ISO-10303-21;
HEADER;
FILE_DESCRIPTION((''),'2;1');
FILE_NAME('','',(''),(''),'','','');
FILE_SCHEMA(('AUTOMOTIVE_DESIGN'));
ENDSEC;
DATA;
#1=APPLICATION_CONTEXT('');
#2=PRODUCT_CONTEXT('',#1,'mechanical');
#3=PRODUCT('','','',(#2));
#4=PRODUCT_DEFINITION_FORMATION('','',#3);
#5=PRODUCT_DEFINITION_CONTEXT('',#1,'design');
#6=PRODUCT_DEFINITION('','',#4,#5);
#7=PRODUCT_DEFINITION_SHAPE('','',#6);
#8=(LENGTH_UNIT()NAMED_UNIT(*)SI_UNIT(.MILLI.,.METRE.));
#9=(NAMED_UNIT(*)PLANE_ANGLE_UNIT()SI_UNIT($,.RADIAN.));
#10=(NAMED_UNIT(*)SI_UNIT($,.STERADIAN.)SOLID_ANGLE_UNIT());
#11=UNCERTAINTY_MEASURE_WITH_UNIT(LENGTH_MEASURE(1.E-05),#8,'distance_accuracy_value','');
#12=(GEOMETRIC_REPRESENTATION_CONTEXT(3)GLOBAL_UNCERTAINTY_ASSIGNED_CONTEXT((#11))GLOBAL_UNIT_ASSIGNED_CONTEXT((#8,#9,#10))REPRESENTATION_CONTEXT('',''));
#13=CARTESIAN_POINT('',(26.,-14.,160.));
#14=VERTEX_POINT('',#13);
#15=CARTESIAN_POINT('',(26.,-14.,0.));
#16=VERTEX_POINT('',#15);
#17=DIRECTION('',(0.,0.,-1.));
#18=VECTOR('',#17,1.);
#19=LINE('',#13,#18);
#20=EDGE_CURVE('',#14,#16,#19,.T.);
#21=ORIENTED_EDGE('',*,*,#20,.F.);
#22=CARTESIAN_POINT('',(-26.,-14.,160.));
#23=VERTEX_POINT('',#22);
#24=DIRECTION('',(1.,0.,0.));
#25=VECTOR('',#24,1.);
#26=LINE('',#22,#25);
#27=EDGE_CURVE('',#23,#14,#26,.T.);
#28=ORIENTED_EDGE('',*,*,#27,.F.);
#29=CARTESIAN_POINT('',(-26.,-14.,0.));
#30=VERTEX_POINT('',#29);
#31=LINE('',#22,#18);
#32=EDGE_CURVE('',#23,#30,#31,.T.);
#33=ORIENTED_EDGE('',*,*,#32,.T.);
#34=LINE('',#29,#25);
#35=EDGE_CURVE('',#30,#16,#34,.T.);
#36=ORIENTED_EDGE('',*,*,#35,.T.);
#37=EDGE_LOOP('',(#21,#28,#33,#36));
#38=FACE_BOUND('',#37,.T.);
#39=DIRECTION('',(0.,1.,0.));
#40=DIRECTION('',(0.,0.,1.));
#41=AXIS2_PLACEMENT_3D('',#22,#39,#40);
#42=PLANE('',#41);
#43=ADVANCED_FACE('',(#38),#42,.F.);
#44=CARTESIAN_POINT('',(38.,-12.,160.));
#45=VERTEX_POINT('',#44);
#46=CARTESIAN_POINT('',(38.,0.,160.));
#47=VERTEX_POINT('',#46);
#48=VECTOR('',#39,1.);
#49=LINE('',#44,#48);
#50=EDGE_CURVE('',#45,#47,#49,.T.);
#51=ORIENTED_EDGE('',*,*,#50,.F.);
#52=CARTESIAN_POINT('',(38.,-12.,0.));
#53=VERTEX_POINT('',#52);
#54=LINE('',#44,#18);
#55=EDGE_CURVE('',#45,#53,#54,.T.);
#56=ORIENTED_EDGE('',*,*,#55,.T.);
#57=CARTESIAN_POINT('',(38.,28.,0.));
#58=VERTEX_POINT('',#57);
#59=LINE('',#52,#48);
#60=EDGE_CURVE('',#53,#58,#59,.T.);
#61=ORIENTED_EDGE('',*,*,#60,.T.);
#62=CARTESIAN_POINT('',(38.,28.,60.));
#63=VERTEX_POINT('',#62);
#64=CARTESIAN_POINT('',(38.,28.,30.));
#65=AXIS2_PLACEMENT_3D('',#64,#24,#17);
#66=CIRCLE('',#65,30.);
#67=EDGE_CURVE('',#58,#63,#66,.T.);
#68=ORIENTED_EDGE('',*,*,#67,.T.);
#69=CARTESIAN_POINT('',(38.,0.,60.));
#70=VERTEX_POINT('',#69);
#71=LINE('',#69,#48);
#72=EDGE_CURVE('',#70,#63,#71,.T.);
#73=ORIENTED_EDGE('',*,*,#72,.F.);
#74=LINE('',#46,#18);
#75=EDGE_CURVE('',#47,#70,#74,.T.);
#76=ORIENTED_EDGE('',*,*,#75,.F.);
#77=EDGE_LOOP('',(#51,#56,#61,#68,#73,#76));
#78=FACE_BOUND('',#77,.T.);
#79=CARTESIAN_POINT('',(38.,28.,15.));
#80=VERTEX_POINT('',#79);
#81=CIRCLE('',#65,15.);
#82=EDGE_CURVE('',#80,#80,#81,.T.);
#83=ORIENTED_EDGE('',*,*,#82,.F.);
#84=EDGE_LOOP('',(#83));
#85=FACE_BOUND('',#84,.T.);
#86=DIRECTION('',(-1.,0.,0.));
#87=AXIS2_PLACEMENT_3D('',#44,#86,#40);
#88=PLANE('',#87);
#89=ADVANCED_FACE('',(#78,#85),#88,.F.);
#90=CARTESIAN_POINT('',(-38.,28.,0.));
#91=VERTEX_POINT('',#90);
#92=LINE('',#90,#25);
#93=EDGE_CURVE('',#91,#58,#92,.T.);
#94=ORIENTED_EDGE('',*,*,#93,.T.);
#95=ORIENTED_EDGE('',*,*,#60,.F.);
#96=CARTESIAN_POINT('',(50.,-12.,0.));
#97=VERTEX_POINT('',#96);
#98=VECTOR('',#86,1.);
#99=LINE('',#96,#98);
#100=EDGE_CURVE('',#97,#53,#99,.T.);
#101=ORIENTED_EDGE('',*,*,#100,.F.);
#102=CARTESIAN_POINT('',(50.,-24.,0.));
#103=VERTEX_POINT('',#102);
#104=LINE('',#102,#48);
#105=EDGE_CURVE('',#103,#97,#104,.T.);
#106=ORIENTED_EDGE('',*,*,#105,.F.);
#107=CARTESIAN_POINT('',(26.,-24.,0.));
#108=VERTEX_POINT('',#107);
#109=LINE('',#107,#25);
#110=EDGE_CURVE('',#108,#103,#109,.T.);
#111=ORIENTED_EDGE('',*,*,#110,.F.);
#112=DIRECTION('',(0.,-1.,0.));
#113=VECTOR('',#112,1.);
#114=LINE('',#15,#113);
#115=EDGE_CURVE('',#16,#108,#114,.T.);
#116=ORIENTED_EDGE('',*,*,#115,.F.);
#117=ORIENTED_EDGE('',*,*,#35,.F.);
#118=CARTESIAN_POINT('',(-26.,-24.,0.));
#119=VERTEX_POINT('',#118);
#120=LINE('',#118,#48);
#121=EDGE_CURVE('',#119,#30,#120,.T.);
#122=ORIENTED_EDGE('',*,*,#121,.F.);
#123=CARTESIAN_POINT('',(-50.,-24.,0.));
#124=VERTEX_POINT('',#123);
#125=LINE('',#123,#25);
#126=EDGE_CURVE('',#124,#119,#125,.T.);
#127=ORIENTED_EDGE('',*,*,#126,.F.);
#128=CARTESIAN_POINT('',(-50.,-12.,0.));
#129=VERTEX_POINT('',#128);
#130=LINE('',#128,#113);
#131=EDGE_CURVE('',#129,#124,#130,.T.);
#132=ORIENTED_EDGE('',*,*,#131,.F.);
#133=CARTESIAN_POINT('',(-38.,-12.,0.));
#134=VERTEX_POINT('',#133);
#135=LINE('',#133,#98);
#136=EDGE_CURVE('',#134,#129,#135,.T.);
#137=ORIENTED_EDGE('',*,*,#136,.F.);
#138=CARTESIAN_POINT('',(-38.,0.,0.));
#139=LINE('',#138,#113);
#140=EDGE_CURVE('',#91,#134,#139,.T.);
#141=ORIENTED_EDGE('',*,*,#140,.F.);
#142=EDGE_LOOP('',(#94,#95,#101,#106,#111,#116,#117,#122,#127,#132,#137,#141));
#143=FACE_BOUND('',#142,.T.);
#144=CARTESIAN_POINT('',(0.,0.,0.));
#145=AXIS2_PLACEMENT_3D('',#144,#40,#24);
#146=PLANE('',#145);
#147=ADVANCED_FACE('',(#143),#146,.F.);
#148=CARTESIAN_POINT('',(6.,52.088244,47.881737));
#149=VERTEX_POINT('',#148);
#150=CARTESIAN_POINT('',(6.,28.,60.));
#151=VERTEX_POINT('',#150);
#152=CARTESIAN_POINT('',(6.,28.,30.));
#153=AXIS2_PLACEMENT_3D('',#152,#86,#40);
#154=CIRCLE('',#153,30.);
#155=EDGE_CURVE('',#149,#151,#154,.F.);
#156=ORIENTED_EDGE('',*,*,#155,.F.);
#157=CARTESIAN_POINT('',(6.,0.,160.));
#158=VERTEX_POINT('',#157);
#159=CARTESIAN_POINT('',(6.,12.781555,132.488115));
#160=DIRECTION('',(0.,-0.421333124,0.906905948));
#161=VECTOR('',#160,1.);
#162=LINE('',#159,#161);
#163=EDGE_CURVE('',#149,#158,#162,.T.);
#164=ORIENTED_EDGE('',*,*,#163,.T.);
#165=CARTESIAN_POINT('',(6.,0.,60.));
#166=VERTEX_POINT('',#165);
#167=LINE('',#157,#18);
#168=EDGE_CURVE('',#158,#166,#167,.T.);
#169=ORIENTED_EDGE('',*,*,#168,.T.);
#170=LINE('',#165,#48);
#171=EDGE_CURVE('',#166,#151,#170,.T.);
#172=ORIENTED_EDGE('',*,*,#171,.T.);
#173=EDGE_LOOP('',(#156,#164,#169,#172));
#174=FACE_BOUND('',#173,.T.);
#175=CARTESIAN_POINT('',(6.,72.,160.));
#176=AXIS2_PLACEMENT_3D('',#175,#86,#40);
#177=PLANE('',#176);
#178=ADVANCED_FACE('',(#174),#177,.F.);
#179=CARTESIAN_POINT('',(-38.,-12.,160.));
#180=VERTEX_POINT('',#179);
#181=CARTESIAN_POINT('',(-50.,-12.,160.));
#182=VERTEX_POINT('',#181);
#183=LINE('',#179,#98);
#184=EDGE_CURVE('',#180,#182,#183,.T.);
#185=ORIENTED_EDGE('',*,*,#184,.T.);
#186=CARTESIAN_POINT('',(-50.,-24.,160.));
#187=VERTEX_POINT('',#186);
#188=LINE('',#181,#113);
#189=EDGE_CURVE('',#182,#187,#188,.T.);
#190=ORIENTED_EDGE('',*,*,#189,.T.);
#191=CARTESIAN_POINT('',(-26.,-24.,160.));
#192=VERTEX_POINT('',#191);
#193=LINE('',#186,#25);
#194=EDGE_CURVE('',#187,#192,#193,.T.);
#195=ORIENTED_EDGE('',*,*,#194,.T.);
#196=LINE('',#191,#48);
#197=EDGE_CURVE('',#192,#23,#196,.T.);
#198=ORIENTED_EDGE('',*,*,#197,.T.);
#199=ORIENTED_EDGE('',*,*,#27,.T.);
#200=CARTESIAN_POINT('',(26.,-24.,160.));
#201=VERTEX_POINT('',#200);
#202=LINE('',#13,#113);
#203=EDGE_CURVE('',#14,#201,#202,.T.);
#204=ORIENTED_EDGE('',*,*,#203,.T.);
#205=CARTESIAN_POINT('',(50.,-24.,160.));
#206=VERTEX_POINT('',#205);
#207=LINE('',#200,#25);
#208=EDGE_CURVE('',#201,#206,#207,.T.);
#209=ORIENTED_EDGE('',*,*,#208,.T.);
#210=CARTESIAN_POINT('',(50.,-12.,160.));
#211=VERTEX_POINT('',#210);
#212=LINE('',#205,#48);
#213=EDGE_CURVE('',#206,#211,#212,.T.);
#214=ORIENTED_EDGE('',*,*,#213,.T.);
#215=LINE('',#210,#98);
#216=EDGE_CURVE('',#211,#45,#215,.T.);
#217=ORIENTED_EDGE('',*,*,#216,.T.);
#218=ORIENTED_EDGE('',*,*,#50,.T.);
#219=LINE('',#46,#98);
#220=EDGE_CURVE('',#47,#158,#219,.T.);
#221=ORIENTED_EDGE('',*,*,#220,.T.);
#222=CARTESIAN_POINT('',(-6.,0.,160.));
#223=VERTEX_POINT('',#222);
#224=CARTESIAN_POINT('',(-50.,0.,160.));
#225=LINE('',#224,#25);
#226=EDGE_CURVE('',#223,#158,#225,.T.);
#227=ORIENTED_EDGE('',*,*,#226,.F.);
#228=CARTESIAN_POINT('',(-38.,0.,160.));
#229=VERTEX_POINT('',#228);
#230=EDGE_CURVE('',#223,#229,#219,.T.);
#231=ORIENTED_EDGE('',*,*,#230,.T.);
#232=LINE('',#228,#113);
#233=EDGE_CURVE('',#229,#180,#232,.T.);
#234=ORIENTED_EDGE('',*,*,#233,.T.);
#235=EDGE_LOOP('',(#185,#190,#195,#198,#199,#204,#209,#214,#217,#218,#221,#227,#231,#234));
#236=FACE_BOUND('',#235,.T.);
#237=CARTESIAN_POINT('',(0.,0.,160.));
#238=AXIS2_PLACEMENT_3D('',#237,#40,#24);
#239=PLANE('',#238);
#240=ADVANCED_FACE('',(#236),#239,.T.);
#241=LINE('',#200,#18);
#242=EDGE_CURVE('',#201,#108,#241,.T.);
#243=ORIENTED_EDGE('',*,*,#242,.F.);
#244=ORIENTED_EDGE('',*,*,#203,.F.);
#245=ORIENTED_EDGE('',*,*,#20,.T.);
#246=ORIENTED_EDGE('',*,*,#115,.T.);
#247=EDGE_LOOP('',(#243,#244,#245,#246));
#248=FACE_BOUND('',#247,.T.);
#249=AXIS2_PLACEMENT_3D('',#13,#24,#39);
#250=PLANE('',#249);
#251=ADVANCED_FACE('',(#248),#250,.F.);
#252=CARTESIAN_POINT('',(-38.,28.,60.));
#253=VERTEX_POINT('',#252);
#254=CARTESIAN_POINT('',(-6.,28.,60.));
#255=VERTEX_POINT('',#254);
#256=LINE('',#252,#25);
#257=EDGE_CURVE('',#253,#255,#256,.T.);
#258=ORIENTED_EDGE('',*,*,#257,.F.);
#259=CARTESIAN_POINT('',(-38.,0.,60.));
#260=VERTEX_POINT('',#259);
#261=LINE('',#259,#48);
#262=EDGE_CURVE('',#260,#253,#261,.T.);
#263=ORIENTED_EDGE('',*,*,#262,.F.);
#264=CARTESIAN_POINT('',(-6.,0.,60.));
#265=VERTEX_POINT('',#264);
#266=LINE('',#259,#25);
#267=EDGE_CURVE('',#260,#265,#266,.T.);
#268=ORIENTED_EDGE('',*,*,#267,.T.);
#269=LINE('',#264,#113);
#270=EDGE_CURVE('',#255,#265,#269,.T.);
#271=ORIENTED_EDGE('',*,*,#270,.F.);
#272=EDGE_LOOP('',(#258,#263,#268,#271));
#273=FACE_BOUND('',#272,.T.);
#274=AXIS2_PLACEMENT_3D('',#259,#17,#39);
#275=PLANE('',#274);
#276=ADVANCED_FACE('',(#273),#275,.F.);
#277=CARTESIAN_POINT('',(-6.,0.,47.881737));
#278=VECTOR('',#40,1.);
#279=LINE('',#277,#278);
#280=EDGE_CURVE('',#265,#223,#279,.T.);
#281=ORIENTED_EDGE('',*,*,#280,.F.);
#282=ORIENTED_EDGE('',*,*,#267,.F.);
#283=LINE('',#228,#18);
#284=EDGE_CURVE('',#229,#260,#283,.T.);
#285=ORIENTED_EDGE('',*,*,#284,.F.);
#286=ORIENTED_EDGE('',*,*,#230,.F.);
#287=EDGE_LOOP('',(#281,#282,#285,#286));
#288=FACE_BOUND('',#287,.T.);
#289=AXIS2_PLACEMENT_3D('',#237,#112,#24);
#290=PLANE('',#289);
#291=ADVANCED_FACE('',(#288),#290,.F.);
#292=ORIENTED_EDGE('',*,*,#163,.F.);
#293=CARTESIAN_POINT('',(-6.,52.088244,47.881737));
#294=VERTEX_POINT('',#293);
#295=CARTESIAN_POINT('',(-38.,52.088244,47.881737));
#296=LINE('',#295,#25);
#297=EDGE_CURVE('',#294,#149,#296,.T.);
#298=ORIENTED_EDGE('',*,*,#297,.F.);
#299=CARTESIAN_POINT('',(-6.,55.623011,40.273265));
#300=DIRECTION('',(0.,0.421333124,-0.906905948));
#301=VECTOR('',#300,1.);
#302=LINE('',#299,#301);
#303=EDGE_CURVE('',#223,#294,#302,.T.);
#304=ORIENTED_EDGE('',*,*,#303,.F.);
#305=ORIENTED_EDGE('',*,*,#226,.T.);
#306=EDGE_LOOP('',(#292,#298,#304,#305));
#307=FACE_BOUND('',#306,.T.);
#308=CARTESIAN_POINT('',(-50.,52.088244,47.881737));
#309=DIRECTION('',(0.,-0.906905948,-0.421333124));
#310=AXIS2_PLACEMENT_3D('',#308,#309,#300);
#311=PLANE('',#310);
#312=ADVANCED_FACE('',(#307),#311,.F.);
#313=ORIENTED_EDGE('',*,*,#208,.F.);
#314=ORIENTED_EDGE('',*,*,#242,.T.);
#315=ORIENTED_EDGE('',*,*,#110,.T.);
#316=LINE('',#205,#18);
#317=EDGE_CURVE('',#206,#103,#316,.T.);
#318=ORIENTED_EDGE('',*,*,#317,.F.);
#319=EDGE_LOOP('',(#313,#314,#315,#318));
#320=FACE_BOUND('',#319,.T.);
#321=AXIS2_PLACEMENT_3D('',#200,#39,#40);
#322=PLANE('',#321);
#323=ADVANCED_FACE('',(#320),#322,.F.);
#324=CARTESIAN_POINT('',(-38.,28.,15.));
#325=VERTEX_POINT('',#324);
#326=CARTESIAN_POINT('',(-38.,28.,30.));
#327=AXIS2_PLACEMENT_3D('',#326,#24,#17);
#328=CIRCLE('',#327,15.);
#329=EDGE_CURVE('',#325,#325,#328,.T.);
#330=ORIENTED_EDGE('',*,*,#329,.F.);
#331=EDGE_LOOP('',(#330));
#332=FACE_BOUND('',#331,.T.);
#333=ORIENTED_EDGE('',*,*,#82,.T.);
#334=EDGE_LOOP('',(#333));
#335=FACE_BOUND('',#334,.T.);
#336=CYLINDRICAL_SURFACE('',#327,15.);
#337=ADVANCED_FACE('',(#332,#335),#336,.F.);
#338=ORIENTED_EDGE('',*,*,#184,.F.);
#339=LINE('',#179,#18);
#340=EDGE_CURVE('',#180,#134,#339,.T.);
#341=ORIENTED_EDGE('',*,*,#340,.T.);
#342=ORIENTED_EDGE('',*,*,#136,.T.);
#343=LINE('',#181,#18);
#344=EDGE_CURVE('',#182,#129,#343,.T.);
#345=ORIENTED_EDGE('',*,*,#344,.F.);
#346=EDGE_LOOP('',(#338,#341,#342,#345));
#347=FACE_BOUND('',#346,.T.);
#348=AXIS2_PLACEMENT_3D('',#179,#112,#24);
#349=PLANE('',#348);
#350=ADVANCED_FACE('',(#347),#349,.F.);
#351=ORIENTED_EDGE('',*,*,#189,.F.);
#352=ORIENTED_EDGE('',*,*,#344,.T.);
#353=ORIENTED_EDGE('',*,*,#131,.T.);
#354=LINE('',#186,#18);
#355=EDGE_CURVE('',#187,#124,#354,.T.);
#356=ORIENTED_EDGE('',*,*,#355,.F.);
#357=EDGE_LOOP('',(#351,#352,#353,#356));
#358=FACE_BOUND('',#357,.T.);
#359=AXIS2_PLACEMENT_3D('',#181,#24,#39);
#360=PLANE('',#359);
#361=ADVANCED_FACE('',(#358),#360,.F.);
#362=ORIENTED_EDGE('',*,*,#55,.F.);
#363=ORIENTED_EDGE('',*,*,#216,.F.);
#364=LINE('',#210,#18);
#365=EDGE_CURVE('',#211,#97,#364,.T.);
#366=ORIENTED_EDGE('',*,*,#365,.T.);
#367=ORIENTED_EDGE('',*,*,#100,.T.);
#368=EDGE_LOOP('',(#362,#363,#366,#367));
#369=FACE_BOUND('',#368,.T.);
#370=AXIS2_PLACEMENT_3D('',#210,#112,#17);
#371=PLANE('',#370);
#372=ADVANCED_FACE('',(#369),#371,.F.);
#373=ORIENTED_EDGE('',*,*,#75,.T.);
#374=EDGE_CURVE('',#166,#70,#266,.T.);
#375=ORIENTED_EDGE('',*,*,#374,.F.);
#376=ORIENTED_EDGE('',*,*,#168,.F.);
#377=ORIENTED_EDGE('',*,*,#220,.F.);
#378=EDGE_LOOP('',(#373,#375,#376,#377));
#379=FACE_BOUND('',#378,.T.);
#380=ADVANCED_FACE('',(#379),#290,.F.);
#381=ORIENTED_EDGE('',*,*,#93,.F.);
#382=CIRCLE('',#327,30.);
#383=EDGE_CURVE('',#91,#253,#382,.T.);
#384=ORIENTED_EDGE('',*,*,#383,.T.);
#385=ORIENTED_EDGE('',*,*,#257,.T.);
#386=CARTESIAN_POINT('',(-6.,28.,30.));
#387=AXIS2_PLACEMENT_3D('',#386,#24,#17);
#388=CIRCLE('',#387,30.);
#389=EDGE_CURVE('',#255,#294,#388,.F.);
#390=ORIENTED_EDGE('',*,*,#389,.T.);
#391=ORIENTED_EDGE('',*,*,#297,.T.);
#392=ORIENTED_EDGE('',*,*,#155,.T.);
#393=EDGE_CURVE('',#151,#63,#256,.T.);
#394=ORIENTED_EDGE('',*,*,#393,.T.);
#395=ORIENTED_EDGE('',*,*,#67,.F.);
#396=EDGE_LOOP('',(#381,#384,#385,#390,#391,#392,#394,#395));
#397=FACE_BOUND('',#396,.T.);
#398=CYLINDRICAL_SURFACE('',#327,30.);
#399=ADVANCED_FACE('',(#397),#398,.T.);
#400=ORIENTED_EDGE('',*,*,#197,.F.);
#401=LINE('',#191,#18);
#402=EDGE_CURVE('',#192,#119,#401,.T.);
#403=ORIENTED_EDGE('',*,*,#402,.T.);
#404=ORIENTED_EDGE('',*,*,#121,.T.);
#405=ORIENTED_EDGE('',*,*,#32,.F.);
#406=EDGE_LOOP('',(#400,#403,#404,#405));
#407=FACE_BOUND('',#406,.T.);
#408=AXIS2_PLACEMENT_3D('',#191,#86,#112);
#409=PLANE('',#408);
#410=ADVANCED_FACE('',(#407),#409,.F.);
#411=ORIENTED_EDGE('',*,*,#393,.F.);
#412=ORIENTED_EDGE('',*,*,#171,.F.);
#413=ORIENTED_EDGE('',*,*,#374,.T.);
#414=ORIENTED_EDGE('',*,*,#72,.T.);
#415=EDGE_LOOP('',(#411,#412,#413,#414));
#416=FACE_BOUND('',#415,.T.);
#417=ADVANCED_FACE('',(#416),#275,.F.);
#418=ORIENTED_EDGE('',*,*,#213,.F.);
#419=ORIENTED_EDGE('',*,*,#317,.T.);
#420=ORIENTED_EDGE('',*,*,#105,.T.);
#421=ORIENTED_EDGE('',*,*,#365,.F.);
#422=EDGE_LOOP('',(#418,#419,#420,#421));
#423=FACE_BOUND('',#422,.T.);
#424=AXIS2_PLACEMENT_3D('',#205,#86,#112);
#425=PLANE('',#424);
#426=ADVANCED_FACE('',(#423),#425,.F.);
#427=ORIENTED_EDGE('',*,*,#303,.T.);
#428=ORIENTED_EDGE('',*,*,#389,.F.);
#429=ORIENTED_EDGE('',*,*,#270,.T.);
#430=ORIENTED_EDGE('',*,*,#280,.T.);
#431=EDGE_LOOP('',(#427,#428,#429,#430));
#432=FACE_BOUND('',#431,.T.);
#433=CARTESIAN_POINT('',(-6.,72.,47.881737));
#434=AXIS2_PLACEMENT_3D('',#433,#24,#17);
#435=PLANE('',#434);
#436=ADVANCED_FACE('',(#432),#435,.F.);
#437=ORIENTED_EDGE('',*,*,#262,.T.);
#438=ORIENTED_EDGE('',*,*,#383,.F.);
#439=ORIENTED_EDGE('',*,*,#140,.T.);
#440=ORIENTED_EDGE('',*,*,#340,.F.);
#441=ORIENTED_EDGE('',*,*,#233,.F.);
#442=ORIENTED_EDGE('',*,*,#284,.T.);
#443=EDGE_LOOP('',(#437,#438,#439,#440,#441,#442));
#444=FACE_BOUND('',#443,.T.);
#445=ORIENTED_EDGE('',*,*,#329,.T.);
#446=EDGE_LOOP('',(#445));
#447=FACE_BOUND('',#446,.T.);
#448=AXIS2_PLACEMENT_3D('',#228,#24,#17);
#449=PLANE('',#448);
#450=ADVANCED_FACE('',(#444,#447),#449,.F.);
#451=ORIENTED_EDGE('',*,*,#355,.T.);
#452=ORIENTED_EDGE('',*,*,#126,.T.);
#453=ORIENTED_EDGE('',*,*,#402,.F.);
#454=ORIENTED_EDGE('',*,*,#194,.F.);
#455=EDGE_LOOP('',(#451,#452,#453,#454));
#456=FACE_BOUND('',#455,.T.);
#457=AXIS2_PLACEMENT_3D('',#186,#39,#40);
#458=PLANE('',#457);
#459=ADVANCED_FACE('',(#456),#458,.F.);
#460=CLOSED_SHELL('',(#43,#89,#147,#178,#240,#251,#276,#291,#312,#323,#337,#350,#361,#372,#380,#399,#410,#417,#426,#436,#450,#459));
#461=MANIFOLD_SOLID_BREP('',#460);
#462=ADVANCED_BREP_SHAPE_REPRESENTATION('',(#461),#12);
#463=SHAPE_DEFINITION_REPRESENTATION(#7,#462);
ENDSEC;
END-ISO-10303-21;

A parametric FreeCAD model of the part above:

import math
import FreeCAD as App
import Part
import Sketcher
Q = App.Units.Quantity


def add_polygon(sketch, points):
    """Adds a closed chain of lines whose ends are joined by coincident constraints."""
    first, n = sketch.GeometryCount, len(points)
    for a, b in zip(points, points[1:] + points[:1]):
        sketch.addGeometry(Part.LineSegment(App.Vector(*a, 0), App.Vector(*b, 0)), False)
    for i in range(n):
        sketch.addConstraint(Sketcher.Constraint("Coincident", first + i, 2, first + (i + 1) % n, 1))

doc = App.newDocument("Part")
body = doc.addObject("PartDesign::Body", "Body")

# Sketch on XY plane
sketch1 = body.newObject("Sketcher::SketchObject", "Sketch")
sketch1.AttachmentSupport = (doc.getObject("XY_Plane"), [""])
sketch1.MapMode = "FlatFace"
add_polygon(sketch1, [(-38, 0), (-38, -12), (-50, -12), (-50, -24), (-26, -24), (-26, -14), (26, -14), (26, -24), (50, -24), (50, -12), (38, -12), (38, 0)])  # lines 0-11
sketch1.addConstraint([
    Sketcher.Constraint("Vertical", 0),
    Sketcher.Constraint("Horizontal", 1),
    Sketcher.Constraint("Vertical", 2),
    Sketcher.Constraint("Horizontal", 3),
    Sketcher.Constraint("Vertical", 4),
    Sketcher.Constraint("Horizontal", 5),
    Sketcher.Constraint("Vertical", 6),
    Sketcher.Constraint("Horizontal", 7),
    Sketcher.Constraint("Vertical", 8),
    Sketcher.Constraint("Horizontal", 9),
    Sketcher.Constraint("Vertical", 10),
    Sketcher.Constraint("Horizontal", 11),
    Sketcher.Constraint("Symmetric", 10, 2, 11, 2, -1, 1),
    Sketcher.Constraint("Symmetric", 3, 2, 6, 2, -2),
    Sketcher.Constraint("Symmetric", 1, 2, 8, 2, -2),
    Sketcher.Constraint("Equal", 9, 0),
    Sketcher.Constraint("Equal", 0, 2),
    Sketcher.Constraint("DistanceX", 1, 2, 1, 1, Q("12 mm")),
    Sketcher.Constraint("DistanceX", 3, 1, 3, 2, Q("24 mm")),
    Sketcher.Constraint("DistanceX", 5, 1, 5, 2, Q("52 mm")),
    Sketcher.Constraint("DistanceY", 4, 1, 4, 2, Q("10 mm")),
])
pad1 = body.newObject("PartDesign::Pad", "Pad")
pad1.Profile = sketch1
pad1.Length = 160

# Sketch on YZ plane
sketch2 = body.newObject("Sketcher::SketchObject", "Sketch001")
sketch2.AttachmentSupport = (doc.getObject("YZ_Plane"), [""])
sketch2.MapMode = "FlatFace"
sketch2.AttachmentOffset = App.Placement(App.Vector(0, 0, 38), App.Rotation())
sketch2.addGeometry([
    Part.LineSegment(App.Vector(0, 60, 0), App.Vector(0, 0, 0)),  # 0
    Part.LineSegment(App.Vector(0, 0, 0), App.Vector(28, 0, 0)),  # 1
    Part.ArcOfCircle(Part.Circle(App.Vector(28, 30, 0), App.Vector(0, 0, 1), 30), math.radians(-90), math.radians(90)),  # 2
    Part.LineSegment(App.Vector(28, 60, 0), App.Vector(0, 60, 0)),  # 3
    Part.Circle(App.Vector(28, 30, 0), App.Vector(0, 0, 1), 15),  # 4
], False)
sketch2.addConstraint([
    Sketcher.Constraint("Coincident", 0, 2, 1, 1),
    Sketcher.Constraint("Tangent", 1, 2, 2, 1),
    Sketcher.Constraint("Tangent", 2, 2, 3, 1),
    Sketcher.Constraint("Coincident", 3, 2, 0, 1),
    Sketcher.Constraint("Vertical", 0),
    Sketcher.Constraint("Horizontal", 1),
    Sketcher.Constraint("Horizontal", 3),
    Sketcher.Constraint("Coincident", 0, 2, -1, 1),
    Sketcher.Constraint("Coincident", 4, 3, 2, 3),
    Sketcher.Constraint("Diameter", 4, Q("30 mm")),
    Sketcher.Constraint("Radius", 2, Q("30 mm")),
    Sketcher.Constraint("DistanceX", 1, 1, 1, 2, Q("28 mm")),
])
pad2 = body.newObject("PartDesign::Pad", "Pad001")
pad2.Profile = sketch2
pad2.Length = 76
pad2.Reversed = True

# Sketch on XZ plane
sketch3 = body.newObject("Sketcher::SketchObject", "Sketch002")
sketch3.AttachmentSupport = (doc.getObject("XZ_Plane"), [""])
sketch3.MapMode = "FlatFace"
add_polygon(sketch3, [(-6, 48), (-6, 160), (6, 160), (6, 48)])  # lines 0-3
sketch3.addConstraint([
    Sketcher.Constraint("Vertical", 0),
    Sketcher.Constraint("Horizontal", 1),
    Sketcher.Constraint("Vertical", 2),
    Sketcher.Constraint("Horizontal", 3),
    Sketcher.Constraint("DistanceX", 1, 1, 1, 2, Q("12 mm")),
    Sketcher.Constraint("DistanceX", 0, 2, -1, 1, Q("6 mm")),
    Sketcher.Constraint("DistanceY", -1, 1, 0, 2, Q("160 mm")),
    Sketcher.Constraint("DistanceY", 0, 1, 0, 2, Q("112.118263 mm")),
])
pad3 = body.newObject("PartDesign::Pad", "Pad002")
pad3.Profile = sketch3
pad3.Length = 72
pad3.Reversed = True

# Sketch on YZ plane
sketch4 = body.newObject("Sketcher::SketchObject", "Sketch003")
sketch4.AttachmentSupport = (doc.getObject("YZ_Plane"), [""])
sketch4.MapMode = "FlatFace"
add_polygon(sketch4, [(0, 160), (52, 48), (72, 48), (72, 160)])  # lines 0-3
sketch4.addConstraint([
    Sketcher.Constraint("Horizontal", 1),
    Sketcher.Constraint("Vertical", 2),
    Sketcher.Constraint("Horizontal", 3),
    Sketcher.Constraint("PointOnObject", 3, 2, -2),
    Sketcher.Constraint("DistanceX", 3, 2, 3, 1, Q("72 mm")),
    Sketcher.Constraint("DistanceY", -1, 1, 2, 2, Q("160 mm")),
    Sketcher.Constraint("DistanceX", 1, 1, 1, 2, Q("19.911756 mm")),
    Sketcher.Constraint("DistanceY", 2, 1, 2, 2, Q("112.118263 mm")),
])
pocket1 = body.newObject("PartDesign::Pocket", "Pocket")
pocket1.Profile = sketch4
pocket1.Type = "ThroughAll"
pocket1.Midplane = True

doc.recompute()
